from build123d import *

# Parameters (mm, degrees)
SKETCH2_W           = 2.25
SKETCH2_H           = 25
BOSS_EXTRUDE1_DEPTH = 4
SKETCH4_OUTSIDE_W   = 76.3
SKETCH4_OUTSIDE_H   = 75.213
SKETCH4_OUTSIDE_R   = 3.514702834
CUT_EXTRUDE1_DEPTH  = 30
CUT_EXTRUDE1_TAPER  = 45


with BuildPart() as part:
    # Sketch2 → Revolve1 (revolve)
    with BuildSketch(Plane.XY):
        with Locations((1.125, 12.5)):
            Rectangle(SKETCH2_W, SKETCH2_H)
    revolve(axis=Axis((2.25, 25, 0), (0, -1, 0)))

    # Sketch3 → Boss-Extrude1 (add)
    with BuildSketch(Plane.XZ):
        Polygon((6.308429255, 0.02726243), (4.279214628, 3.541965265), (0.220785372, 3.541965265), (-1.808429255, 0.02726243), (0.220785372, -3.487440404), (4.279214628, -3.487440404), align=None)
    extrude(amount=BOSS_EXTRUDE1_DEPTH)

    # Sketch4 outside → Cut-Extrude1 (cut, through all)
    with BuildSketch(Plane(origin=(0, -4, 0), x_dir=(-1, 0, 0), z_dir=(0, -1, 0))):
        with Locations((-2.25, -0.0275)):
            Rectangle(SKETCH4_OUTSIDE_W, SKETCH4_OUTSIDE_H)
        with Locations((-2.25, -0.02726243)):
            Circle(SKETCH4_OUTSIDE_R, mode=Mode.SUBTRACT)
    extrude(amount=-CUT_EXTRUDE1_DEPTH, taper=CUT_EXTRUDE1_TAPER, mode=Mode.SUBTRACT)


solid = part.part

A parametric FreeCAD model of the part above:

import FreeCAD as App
import Part
import Sketcher
Q = App.Units.Quantity

doc = App.newDocument("Part")
body = doc.addObject("PartDesign::Body", "Body")

sketch1 = doc.addObject("Sketcher::SketchObject", "Sketch")
body.addObject(sketch1)
sketch1.AttachmentSupport = (doc.XY_Plane, [""])
sketch1.MapMode = "FlatFace"
sketch1.addGeometry([
    Part.LineSegment(App.Vector(0, 25, 0), App.Vector(0, 0, 0)),
    Part.LineSegment(App.Vector(0, 0, 0), App.Vector(2.2, 0, 0)),
    Part.LineSegment(App.Vector(2.2, 0, 0), App.Vector(2.2, 25, 0)),
    Part.LineSegment(App.Vector(2.2, 25, 0), App.Vector(0, 25, 0)),
], False)
sketch1.addGeometry(Part.LineSegment(App.Vector(2.2, 25, 0), App.Vector(2.2, 0, 0)), True)
sketch1.addConstraint([
    Sketcher.Constraint("Coincident", 0, 2, 1, 1),
    Sketcher.Constraint("Coincident", 1, 2, 2, 1),
    Sketcher.Constraint("Coincident", 2, 2, 3, 1),
    Sketcher.Constraint("Coincident", 3, 2, 0, 1),
    Sketcher.Constraint("Vertical", 0),
    Sketcher.Constraint("Horizontal", 1),
    Sketcher.Constraint("Vertical", 2),
    Sketcher.Constraint("Horizontal", 3),
    Sketcher.Constraint("Vertical", 4),
    Sketcher.Constraint("Coincident", 0, 2, -1, 1),
    Sketcher.Constraint("Coincident", 4, 1, 2, 2),
    Sketcher.Constraint("PointOnObject", 4, 2, -1),
    Sketcher.Constraint("DistanceY", 0, 2, 0, 1, 25.0),
    Sketcher.Constraint("DistanceX", 1, 1, 1, 2, 2.25),
])
revolution = doc.addObject("PartDesign::Revolution", "Revolution")
body.addObject(revolution)
revolution.Profile = sketch1
revolution.ReferenceAxis = (sketch1, ["Axis0"])
revolution.Angle = 360

sketch2 = doc.addObject("Sketcher::SketchObject", "Sketch001")
body.addObject(sketch2)
sketch2.AttachmentSupport = (doc.XZ_Plane, [""])
sketch2.MapMode = "FlatFace"
sketch2.addGeometry([
    Part.LineSegment(App.Vector(6.3, 0, 0), App.Vector(4.3, 3.5, 0)),
    Part.LineSegment(App.Vector(4.3, 3.5, 0), App.Vector(0.2, 3.5, 0)),
    Part.LineSegment(App.Vector(0.2, 3.5, 0), App.Vector(-1.8, 0, 0)),
    Part.LineSegment(App.Vector(-1.8, 0, 0), App.Vector(0.2, -3.5, 0)),
    Part.LineSegment(App.Vector(0.2, -3.5, 0), App.Vector(4.3, -3.5, 0)),
    Part.LineSegment(App.Vector(4.3, -3.5, 0), App.Vector(6.3, 0, 0)),
], False)
sketch2.addConstraint([
    Sketcher.Constraint("Coincident", 0, 2, 1, 1),
    Sketcher.Constraint("Coincident", 1, 2, 2, 1),
    Sketcher.Constraint("Coincident", 2, 2, 3, 1),
    Sketcher.Constraint("Coincident", 3, 2, 4, 1),
    Sketcher.Constraint("Coincident", 4, 2, 5, 1),
    Sketcher.Constraint("Coincident", 5, 2, 0, 1),
    Sketcher.Constraint("Horizontal", 1),
    Sketcher.Constraint("Horizontal", 4),
    Sketcher.Constraint("Parallel", 0, 3),
    Sketcher.Constraint("Parallel", 2, 5),
    Sketcher.Constraint("Horizontal", 2, 2, 5, 2),
    Sketcher.Constraint("Vertical", 1, 2, 3, 2),
    Sketcher.Constraint("Vertical", 0, 2, 4, 2),
    Sketcher.Constraint("Angle", 0, Q("120 deg")),
    Sketcher.Constraint("DistanceX", 1, 2, 1, 1, 4.058429),
    Sketcher.Constraint("Distance", 0, 4.058429),
    Sketcher.Constraint("DistanceX", 2, 2, -1, 1, 1.808429),
    Sketcher.Constraint("DistanceY", 3, 2, -1, 1, 3.48744),
])
pad1 = doc.addObject("PartDesign::Pad", "Pad")
body.addObject(pad1)
pad1.Profile = sketch2
pad1.Length = 4

sketch3 = doc.addObject("Sketcher::SketchObject", "Sketch002")
body.addObject(sketch3)
sketch3.AttachmentSupport = (doc.XZ_Plane, [""])
sketch3.MapMode = "FlatFace"
sketch3.AttachmentOffset = App.Placement(App.Vector(0, 0, 4), App.Rotation())
sketch3.addGeometry([
    Part.LineSegment(App.Vector(40.4, -37.6, 0), App.Vector(40.4, 37.6, 0)),
    Part.LineSegment(App.Vector(40.4, 37.6, 0), App.Vector(-35.9, 37.6, 0)),
    Part.LineSegment(App.Vector(-35.9, 37.6, 0), App.Vector(-35.9, -37.6, 0)),
    Part.LineSegment(App.Vector(-35.9, -37.6, 0), App.Vector(40.4, -37.6, 0)),
    Part.Circle(App.Vector(2.2, 0, 0), App.Vector(0, 0, 1), 3.5),
], False)
sketch3.addConstraint([
    Sketcher.Constraint("Coincident", 0, 2, 1, 1),
    Sketcher.Constraint("Coincident", 1, 2, 2, 1),
    Sketcher.Constraint("Coincident", 2, 2, 3, 1),
    Sketcher.Constraint("Coincident", 3, 2, 0, 1),
    Sketcher.Constraint("Vertical", 0),
    Sketcher.Constraint("Horizontal", 1),
    Sketcher.Constraint("Vertical", 2),
    Sketcher.Constraint("Horizontal", 3),
    Sketcher.Constraint("DistanceX", 1, 2, 1, 1, 76.3),
    Sketcher.Constraint("DistanceX", -1, 1, 0, 2, 40.4),
    Sketcher.Constraint("DistanceY", 0, 1, 0, 2, 75.213),
    Sketcher.Constraint("DistanceX", -1, 1, 4, 3, 2.25),
    Sketcher.Constraint("Diameter", 4, 7.029406),
    Sketcher.Constraint("DistanceY", -1, 1, 0, 2, 37.634),
    Sketcher.Constraint("DistanceY", -1, 1, 4, 3, 0.027262),
])
pocket1 = doc.addObject("PartDesign::Pocket", "Pocket")
body.addObject(pocket1)
pocket1.Profile = sketch3
pocket1.Length = 30
pocket1.TaperAngle = 45

doc.recompute()
